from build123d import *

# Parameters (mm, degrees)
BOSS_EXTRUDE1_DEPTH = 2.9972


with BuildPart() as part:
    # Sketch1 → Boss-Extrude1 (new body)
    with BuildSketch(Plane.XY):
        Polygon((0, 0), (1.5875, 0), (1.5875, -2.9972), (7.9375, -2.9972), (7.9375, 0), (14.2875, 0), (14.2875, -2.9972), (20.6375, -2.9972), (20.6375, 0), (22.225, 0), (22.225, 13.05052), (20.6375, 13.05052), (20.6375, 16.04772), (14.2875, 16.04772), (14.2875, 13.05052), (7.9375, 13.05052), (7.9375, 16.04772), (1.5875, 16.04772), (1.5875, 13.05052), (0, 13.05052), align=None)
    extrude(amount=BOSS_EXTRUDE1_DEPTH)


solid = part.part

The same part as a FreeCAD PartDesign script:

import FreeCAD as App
import Part
import Sketcher
from FreeCAD import Vector
Q = App.Units.Quantity


def add_polygon(sketch, points):
    """Adds a closed chain of lines whose ends are joined by coincident constraints."""
    first, n = sketch.GeometryCount, len(points)
    for a, b in zip(points, points[1:] + points[:1]):
        sketch.addGeometry(Part.LineSegment(App.Vector(*a, 0), App.Vector(*b, 0)), False)
    for i in range(n):
        sketch.addConstraint(Sketcher.Constraint("Coincident", first + i, 2, first + (i + 1) % n, 1))

doc = App.newDocument("Part")
body = doc.addObject("PartDesign::Body", "Body")

sketch1 = doc.addObject("Sketcher::SketchObject", "Sketch")
body.addObject(sketch1)
sketch1.AttachmentSupport = (doc.XY_Plane, [""])
sketch1.MapMode = "FlatFace"
add_polygon(sketch1, [(0, 0), (1.5875, 0), (1.5875, -2.9972), (7.9375, -2.9972), (7.9375, 0), (14.2875, 0), (14.2875, -2.9972), (20.6375, -2.9972), (20.6375, 0), (22.225, 0), (22.225, 13.05052), (20.6375, 13.05052), (20.6375, 16.04772), (14.2875, 16.04772), (14.2875, 13.05052), (7.9375, 13.05052), (7.9375, 16.04772), (1.5875, 16.04772), (1.5875, 13.05052), (0, 13.05052)])
sketch1.addConstraint([
    Sketcher.Constraint("Horizontal", 0),
    Sketcher.Constraint("Vertical", 1),
    Sketcher.Constraint("Horizontal", 2),
    Sketcher.Constraint("Vertical", 3),
    Sketcher.Constraint("Horizontal", 4),
    Sketcher.Constraint("Vertical", 5),
    Sketcher.Constraint("Horizontal", 6),
    Sketcher.Constraint("Vertical", 7),
    Sketcher.Constraint("Horizontal", 8),
    Sketcher.Constraint("Vertical", 9),
    Sketcher.Constraint("Horizontal", 10),
    Sketcher.Constraint("Vertical", 11),
    Sketcher.Constraint("Horizontal", 12),
    Sketcher.Constraint("Vertical", 13),
    Sketcher.Constraint("Horizontal", 14),
    Sketcher.Constraint("Vertical", 15),
    Sketcher.Constraint("Horizontal", 16),
    Sketcher.Constraint("Vertical", 17),
    Sketcher.Constraint("Horizontal", 18),
    Sketcher.Constraint("Vertical", 19),
    Sketcher.Constraint("Coincident", 19, 2, -1, 1),
    Sketcher.Constraint("PointOnObject", 3, 2, -1),
    Sketcher.Constraint("PointOnObject", 7, 2, -1),
    Sketcher.Constraint("Horizontal", 2, 2, 5, 2),
    Sketcher.Constraint("Horizontal", 10, 2, 13, 2),
    Sketcher.Constraint("Horizontal", 12, 2, 15, 2),
    Sketcher.Constraint("Horizontal", 14, 2, 17, 2),
    Sketcher.Constraint("Vertical", 7, 2, 10, 2),
    Sketcher.Constraint("Vertical", 5, 2, 12, 2),
    Sketcher.Constraint("Vertical", 3, 2, 14, 2),
    Sketcher.Constraint("Vertical", 1, 2, 16, 2),
    Sketcher.Constraint("Equal", 2, 4),
    Sketcher.Constraint("Equal", 4, 6),
    Sketcher.Constraint("Equal", 0, 8),
    Sketcher.Constraint("Equal", 7, 11),
    Sketcher.Constraint("DistanceX", 2, 1, 2, 2, Q("0.25 in")),
    Sketcher.Constraint("DistanceX", 0, 1, 0, 2, Q("0.0625 in")),
    Sketcher.Constraint("DistanceY", 1, 2, 1, 1, Q("0.118 in")),
    Sketcher.Constraint("DistanceY", 9, 1, 9, 2, Q("0.5138 in")),
])
pad1 = doc.addObject("PartDesign::Pad", "Pad")
body.addObject(pad1)
pad1.Profile = sketch1
pad1.Length = Q("0.118 in")

doc.recompute()
